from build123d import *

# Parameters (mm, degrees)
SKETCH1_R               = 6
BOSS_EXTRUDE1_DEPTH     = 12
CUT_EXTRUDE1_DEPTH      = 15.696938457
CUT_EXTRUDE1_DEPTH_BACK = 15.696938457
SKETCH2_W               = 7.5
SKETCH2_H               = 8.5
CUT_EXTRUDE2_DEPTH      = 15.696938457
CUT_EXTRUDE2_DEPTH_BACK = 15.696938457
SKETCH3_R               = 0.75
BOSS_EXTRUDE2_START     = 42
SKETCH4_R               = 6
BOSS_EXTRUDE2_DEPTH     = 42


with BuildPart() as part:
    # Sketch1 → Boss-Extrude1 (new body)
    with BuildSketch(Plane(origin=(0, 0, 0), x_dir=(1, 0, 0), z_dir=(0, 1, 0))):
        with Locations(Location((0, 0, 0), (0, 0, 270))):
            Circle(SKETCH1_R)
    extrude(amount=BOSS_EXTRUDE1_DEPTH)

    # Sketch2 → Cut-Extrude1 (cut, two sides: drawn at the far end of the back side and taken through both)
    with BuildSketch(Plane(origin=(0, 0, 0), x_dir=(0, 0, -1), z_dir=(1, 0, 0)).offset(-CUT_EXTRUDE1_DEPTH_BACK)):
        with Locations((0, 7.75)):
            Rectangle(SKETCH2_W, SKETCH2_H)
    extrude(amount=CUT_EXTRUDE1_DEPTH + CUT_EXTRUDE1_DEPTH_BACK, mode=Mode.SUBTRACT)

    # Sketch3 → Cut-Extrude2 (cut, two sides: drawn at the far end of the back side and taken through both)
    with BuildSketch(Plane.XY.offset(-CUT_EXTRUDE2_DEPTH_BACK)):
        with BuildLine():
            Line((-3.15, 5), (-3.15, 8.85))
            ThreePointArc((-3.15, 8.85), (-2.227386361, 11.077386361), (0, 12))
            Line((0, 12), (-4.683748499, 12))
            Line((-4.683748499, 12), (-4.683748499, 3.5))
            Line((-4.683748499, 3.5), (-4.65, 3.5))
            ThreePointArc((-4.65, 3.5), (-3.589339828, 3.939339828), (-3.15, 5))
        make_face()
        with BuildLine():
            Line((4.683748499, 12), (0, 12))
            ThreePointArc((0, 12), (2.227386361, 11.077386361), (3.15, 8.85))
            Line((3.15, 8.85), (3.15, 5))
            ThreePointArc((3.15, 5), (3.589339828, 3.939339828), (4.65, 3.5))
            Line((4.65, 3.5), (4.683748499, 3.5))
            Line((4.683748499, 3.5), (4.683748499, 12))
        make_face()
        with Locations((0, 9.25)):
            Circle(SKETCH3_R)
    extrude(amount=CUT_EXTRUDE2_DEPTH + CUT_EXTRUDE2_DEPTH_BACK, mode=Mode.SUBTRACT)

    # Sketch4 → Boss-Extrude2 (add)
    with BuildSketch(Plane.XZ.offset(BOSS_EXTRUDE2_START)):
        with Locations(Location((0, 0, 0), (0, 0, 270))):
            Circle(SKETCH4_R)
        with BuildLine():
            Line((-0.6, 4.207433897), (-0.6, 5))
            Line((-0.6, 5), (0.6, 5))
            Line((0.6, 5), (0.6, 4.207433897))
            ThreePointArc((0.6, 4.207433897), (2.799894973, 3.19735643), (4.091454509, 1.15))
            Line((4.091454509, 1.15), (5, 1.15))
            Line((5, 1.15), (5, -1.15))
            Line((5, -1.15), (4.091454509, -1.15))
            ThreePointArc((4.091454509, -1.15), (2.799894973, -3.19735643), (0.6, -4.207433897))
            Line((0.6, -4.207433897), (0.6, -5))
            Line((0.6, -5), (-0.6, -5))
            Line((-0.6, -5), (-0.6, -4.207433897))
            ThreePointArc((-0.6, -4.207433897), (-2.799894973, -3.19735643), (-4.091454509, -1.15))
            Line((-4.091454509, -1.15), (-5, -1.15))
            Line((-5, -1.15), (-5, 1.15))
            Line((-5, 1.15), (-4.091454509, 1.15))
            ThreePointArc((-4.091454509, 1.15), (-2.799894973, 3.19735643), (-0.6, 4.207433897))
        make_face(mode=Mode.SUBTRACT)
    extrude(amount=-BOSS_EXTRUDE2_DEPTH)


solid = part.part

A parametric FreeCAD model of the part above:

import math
import FreeCAD as App
import Part
import Sketcher

V = App.Vector
Q = App.Units.Quantity


def add_polygon(sketch, points):
    """Adds a closed chain of lines whose ends are joined by coincident constraints."""
    first, n = sketch.GeometryCount, len(points)
    for a, b in zip(points, points[1:] + points[:1]):
        sketch.addGeometry(Part.LineSegment(App.Vector(*a, 0), App.Vector(*b, 0)), False)
    for i in range(n):
        sketch.addConstraint(Sketcher.Constraint("Coincident", first + i, 2, first + (i + 1) % n, 1))

doc = App.newDocument("Part")
body = doc.addObject("PartDesign::Body", "Body")

sketch1 = body.newObject("Sketcher::SketchObject", "Sketch")
sketch1.AttachmentSupport = (doc.getObject("XZ_Plane"), [""])
sketch1.MapMode = "FlatFace"
sketch1.addGeometry(Part.Circle(V(0, 0, 0), V(0, 0, 1), 6), False)
sketch1.addConstraint(Sketcher.Constraint("Coincident", 0, 3, -1, 1))
sketch1.addConstraint(Sketcher.Constraint("Diameter", 0, Q("12 mm")))
pad1 = body.newObject("PartDesign::Pad", "Pad")
pad1.Profile = sketch1
pad1.Length = 12
pad1.Reversed = True

sketch2 = body.newObject("Sketcher::SketchObject", "Sketch001")
sketch2.AttachmentSupport = (doc.getObject("YZ_Plane"), [""])
sketch2.MapMode = "FlatFace"
add_polygon(sketch2, [(12, 4), (4, 4), (4, -4), (12, -4)])
sketch2.addConstraint(Sketcher.Constraint("Horizontal", 0))
sketch2.addConstraint(Sketcher.Constraint("Vertical", 1))
sketch2.addConstraint(Sketcher.Constraint("Horizontal", 2))
sketch2.addConstraint(Sketcher.Constraint("Vertical", 3))
sketch2.addConstraint(Sketcher.Constraint("DistanceX", 0, 2, 0, 1, Q("8.5 mm")))
sketch2.addConstraint(Sketcher.Constraint("DistanceY", 1, 2, 1, 1, Q("7.5 mm")))
sketch2.addConstraint(Sketcher.Constraint("DistanceX", -1, 1, 2, 2, Q("12 mm")))
sketch2.addConstraint(Sketcher.Constraint("DistanceY", -1, 1, 0, 2, Q("3.75 mm")))
pocket1 = body.newObject("PartDesign::Pocket", "Pocket")
pocket1.Profile = sketch2
pocket1.Type = "ThroughAll"
pocket1.Midplane = True

sketch3 = body.newObject("Sketcher::SketchObject", "Sketch002")
sketch3.AttachmentSupport = (doc.getObject("XY_Plane"), [""])
sketch3.MapMode = "FlatFace"
sketch3.addGeometry(Part.LineSegment(V(-3.15, 5, 0), V(-3.15, 8.85, 0)), False)
sketch3.addGeometry(Part.ArcOfCircle(Part.Circle(V(0, 8.85, 0), V(0, 0, 1), 3.15), math.radians(90), math.radians(180)), False)
sketch3.addGeometry(Part.LineSegment(V(0, 12, 0), V(-4.684, 12, 0)), False)
sketch3.addGeometry(Part.LineSegment(V(-4.684, 12, 0), V(-4.684, 3.5, 0)), False)
sketch3.addGeometry(Part.LineSegment(V(-4.684, 3.5, 0), V(-4.65, 3.5, 0)), False)
sketch3.addGeometry(Part.ArcOfCircle(Part.Circle(V(-4.65, 5, 0), V(0, 0, 1), 1.5), math.radians(-90), math.radians(0)), False)
sketch3.addGeometry(Part.LineSegment(V(4.684, 12, 0), V(0, 12, 0)), False)
sketch3.addGeometry(Part.ArcOfCircle(Part.Circle(V(0, 8.85, 0), V(0, 0, 1), 3.15), math.radians(0), math.radians(90)), False)
sketch3.addGeometry(Part.LineSegment(V(3.15, 8.85, 0), V(3.15, 5, 0)), False)
sketch3.addGeometry(Part.ArcOfCircle(Part.Circle(V(4.65, 5, 0), V(0, 0, 1), 1.5), math.radians(180), math.radians(270)), False)
sketch3.addGeometry(Part.LineSegment(V(4.65, 3.5, 0), V(4.684, 3.5, 0)), False)
sketch3.addGeometry(Part.LineSegment(V(4.684, 3.5, 0), V(4.684, 12, 0)), False)
sketch3.addGeometry(Part.Circle(V(0, 9.25, 0), V(0, 0, 1), 0.75), False)
sketch3.addConstraint(Sketcher.Constraint("Tangent", 0, 2, 1, 2))
sketch3.addConstraint(Sketcher.Constraint("Tangent", 1, 1, 2, 1))
sketch3.addConstraint(Sketcher.Constraint("Coincident", 2, 2, 3, 1))
sketch3.addConstraint(Sketcher.Constraint("Coincident", 3, 2, 4, 1))
sketch3.addConstraint(Sketcher.Constraint("Tangent", 4, 2, 5, 1))
sketch3.addConstraint(Sketcher.Constraint("Tangent", 5, 2, 0, 1))
sketch3.addConstraint(Sketcher.Constraint("Tangent", 6, 2, 7, 2))
sketch3.addConstraint(Sketcher.Constraint("Tangent", 7, 1, 8, 1))
sketch3.addConstraint(Sketcher.Constraint("Tangent", 8, 2, 9, 1))
sketch3.addConstraint(Sketcher.Constraint("Tangent", 9, 2, 10, 1))
sketch3.addConstraint(Sketcher.Constraint("Coincident", 10, 2, 11, 1))
sketch3.addConstraint(Sketcher.Constraint("Coincident", 11, 2, 6, 1))
sketch3.addConstraint(Sketcher.Constraint("Vertical", 0))
sketch3.addConstraint(Sketcher.Constraint("Horizontal", 2))
sketch3.addConstraint(Sketcher.Constraint("Vertical", 3))
sketch3.addConstraint(Sketcher.Constraint("Horizontal", 4))
sketch3.addConstraint(Sketcher.Constraint("Horizontal", 6))
sketch3.addConstraint(Sketcher.Constraint("Vertical", 8))
sketch3.addConstraint(Sketcher.Constraint("Horizontal", 10))
sketch3.addConstraint(Sketcher.Constraint("Vertical", 11))
sketch3.addConstraint(Sketcher.Constraint("Coincident", 7, 3, 1, 3))
sketch3.addConstraint(Sketcher.Constraint("Equal", 1, 7))
sketch3.addConstraint(Sketcher.Constraint("Equal", 5, 9))
sketch3.addConstraint(Sketcher.Constraint("Symmetric", 5, 3, 9, 3, -2))
sketch3.addConstraint(Sketcher.Constraint("PointOnObject", 12, 3, -2))
sketch3.addConstraint(Sketcher.Constraint("Equal", 2, 6))
sketch3.addConstraint(Sketcher.Constraint("Diameter", 12, Q("1.5 mm")))
sketch3.addConstraint(Sketcher.Constraint("Radius", 5, Q("1.5 mm")))
sketch3.addConstraint(Sketcher.Constraint("Radius", 1, Q("3.15 mm")))
sketch3.addConstraint(Sketcher.Constraint("DistanceY", 3, 2, 3, 1, Q("8.5 mm")))
sketch3.addConstraint(Sketcher.Constraint("DistanceY", -1, 1, 5, 3, Q("5 mm")))
sketch3.addConstraint(Sketcher.Constraint("DistanceY", 1, 3, 12, 3, Q("0.4 mm")))
sketch3.addConstraint(Sketcher.Constraint("DistanceX", 2, 2, 2, 1, Q("4.683748 mm")))
pocket2 = body.newObject("PartDesign::Pocket", "Pocket001")
pocket2.Profile = sketch3
pocket2.Type = "ThroughAll"
pocket2.Midplane = True

sketch4 = body.newObject("Sketcher::SketchObject", "Sketch003")
sketch4.AttachmentSupport = (doc.getObject("XZ_Plane"), [""])
sketch4.MapMode = "FlatFace"
sketch4.AttachmentOffset = App.Placement(V(0, 0, 42), App.Rotation())
sketch4.addGeometry(Part.Circle(V(0, 0, 0), V(0, 0, 1), 6), False)
sketch4.addGeometry(Part.ArcOfCircle(Part.Circle(V(0, 0, 0), V(0, 0, 1), 4.2), math.radians(98), math.radians(164)), False)
sketch4.addGeometry(Part.LineSegment(V(-0.6, 4.2, 0), V(-0.6, 5, 0)), False)
sketch4.addGeometry(Part.LineSegment(V(-0.6, 5, 0), V(0.6, 5, 0)), False)
sketch4.addGeometry(Part.LineSegment(V(0.6, 5, 0), V(0.6, 4.2, 0)), False)
sketch4.addGeometry(Part.ArcOfCircle(Part.Circle(V(0, 0, 0), V(0, 0, 1), 4.2), math.radians(16), math.radians(82)), False)
sketch4.addGeometry(Part.LineSegment(V(4.1, 1.1, 0), V(5, 1.1, 0)), False)
sketch4.addGeometry(Part.LineSegment(V(5, 1.1, 0), V(5, -1.1, 0)), False)
sketch4.addGeometry(Part.LineSegment(V(5, -1.1, 0), V(4.1, -1.1, 0)), False)
sketch4.addGeometry(Part.ArcOfCircle(Part.Circle(V(0, 0, 0), V(0, 0, 1), 4.2), math.radians(-82), math.radians(-16)), False)
sketch4.addGeometry(Part.LineSegment(V(0.6, -4.2, 0), V(0.6, -5, 0)), False)
sketch4.addGeometry(Part.LineSegment(V(0.6, -5, 0), V(-0.6, -5, 0)), False)
sketch4.addGeometry(Part.LineSegment(V(-0.6, -5, 0), V(-0.6, -4.2, 0)), False)
sketch4.addGeometry(Part.ArcOfCircle(Part.Circle(V(0, 0, 0), V(0, 0, 1), 4.2), math.radians(-164), math.radians(-98)), False)
sketch4.addGeometry(Part.LineSegment(V(-4.1, -1.1, 0), V(-5, -1.1, 0)), False)
sketch4.addGeometry(Part.LineSegment(V(-5, -1.1, 0), V(-5, 1.1, 0)), False)
sketch4.addGeometry(Part.LineSegment(V(-5, 1.1, 0), V(-4.1, 1.1, 0)), False)
sketch4.addConstraint(Sketcher.Constraint("Coincident", 1, 1, 2, 1))
sketch4.addConstraint(Sketcher.Constraint("Coincident", 2, 2, 3, 1))
sketch4.addConstraint(Sketcher.Constraint("Coincident", 3, 2, 4, 1))
sketch4.addConstraint(Sketcher.Constraint("Coincident", 4, 2, 5, 2))
sketch4.addConstraint(Sketcher.Constraint("Coincident", 5, 1, 6, 1))
sketch4.addConstraint(Sketcher.Constraint("Coincident", 6, 2, 7, 1))
sketch4.addConstraint(Sketcher.Constraint("Coincident", 7, 2, 8, 1))
sketch4.addConstraint(Sketcher.Constraint("Coincident", 8, 2, 9, 2))
sketch4.addConstraint(Sketcher.Constraint("Coincident", 9, 1, 10, 1))
sketch4.addConstraint(Sketcher.Constraint("Coincident", 10, 2, 11, 1))
sketch4.addConstraint(Sketcher.Constraint("Coincident", 11, 2, 12, 1))
sketch4.addConstraint(Sketcher.Constraint("Coincident", 12, 2, 13, 2))
sketch4.addConstraint(Sketcher.Constraint("Coincident", 13, 1, 14, 1))
sketch4.addConstraint(Sketcher.Constraint("Coincident", 14, 2, 15, 1))
sketch4.addConstraint(Sketcher.Constraint("Coincident", 15, 2, 16, 1))
sketch4.addConstraint(Sketcher.Constraint("Coincident", 16, 2, 1, 2))
sketch4.addConstraint(Sketcher.Constraint("Vertical", 2))
sketch4.addConstraint(Sketcher.Constraint("Horizontal", 3))
sketch4.addConstraint(Sketcher.Constraint("Vertical", 4))
sketch4.addConstraint(Sketcher.Constraint("Horizontal", 6))
sketch4.addConstraint(Sketcher.Constraint("Vertical", 7))
sketch4.addConstraint(Sketcher.Constraint("Horizontal", 8))
sketch4.addConstraint(Sketcher.Constraint("Vertical", 10))
sketch4.addConstraint(Sketcher.Constraint("Horizontal", 11))
sketch4.addConstraint(Sketcher.Constraint("Vertical", 12))
sketch4.addConstraint(Sketcher.Constraint("Horizontal", 14))
sketch4.addConstraint(Sketcher.Constraint("Vertical", 15))
sketch4.addConstraint(Sketcher.Constraint("Horizontal", 16))
sketch4.addConstraint(Sketcher.Constraint("Coincident", 0, 3, -1, 1))
sketch4.addConstraint(Sketcher.Constraint("Coincident", 1, 3, -1, 1))
sketch4.addConstraint(Sketcher.Constraint("Coincident", 5, 3, -1, 1))
sketch4.addConstraint(Sketcher.Constraint("Coincident", 9, 3, -1, 1))
sketch4.addConstraint(Sketcher.Constraint("Coincident", 13, 3, -1, 1))
sketch4.addConstraint(Sketcher.Constraint("Equal", 1, 5))
sketch4.addConstraint(Sketcher.Constraint("Equal", 5, 9))
sketch4.addConstraint(Sketcher.Constraint("Equal", 9, 13))
sketch4.addConstraint(Sketcher.Constraint("Symmetric", 2, 2, 10, 2, -1, 1))
sketch4.addConstraint(Sketcher.Constraint("Symmetric", 6, 2, 14, 2, -1, 1))
sketch4.addConstraint(Sketcher.Constraint("Horizontal", 1, 1, 4, 2))
sketch4.addConstraint(Sketcher.Constraint("Horizontal", 9, 1, 12, 2))
sketch4.addConstraint(Sketcher.Constraint("Horizontal", 8, 2, 13, 1))
sketch4.addConstraint(Sketcher.Constraint("Horizontal", 6, 2, 15, 2))
sketch4.addConstraint(Sketcher.Constraint("Diameter", 0, Q("12 mm")))
sketch4.addConstraint(Sketcher.Constraint("Radius", 1, Q("4.25 mm")))
sketch4.addConstraint(Sketcher.Constraint("DistanceX", 3, 1, 3, 2, Q("1.2 mm")))
sketch4.addConstraint(Sketcher.Constraint("DistanceY", 7, 2, 7, 1, Q("2.3 mm")))
sketch4.addConstraint(Sketcher.Constraint("DistanceY", -1, 1, 2, 2, Q("5 mm")))
sketch4.addConstraint(Sketcher.Constraint("DistanceX", -1, 1, 6, 2, Q("5 mm")))
pad2 = body.newObject("PartDesign::Pad", "Pad001")
pad2.Profile = sketch4
pad2.Length = 42
pad2.Reversed = True

doc.recompute()
